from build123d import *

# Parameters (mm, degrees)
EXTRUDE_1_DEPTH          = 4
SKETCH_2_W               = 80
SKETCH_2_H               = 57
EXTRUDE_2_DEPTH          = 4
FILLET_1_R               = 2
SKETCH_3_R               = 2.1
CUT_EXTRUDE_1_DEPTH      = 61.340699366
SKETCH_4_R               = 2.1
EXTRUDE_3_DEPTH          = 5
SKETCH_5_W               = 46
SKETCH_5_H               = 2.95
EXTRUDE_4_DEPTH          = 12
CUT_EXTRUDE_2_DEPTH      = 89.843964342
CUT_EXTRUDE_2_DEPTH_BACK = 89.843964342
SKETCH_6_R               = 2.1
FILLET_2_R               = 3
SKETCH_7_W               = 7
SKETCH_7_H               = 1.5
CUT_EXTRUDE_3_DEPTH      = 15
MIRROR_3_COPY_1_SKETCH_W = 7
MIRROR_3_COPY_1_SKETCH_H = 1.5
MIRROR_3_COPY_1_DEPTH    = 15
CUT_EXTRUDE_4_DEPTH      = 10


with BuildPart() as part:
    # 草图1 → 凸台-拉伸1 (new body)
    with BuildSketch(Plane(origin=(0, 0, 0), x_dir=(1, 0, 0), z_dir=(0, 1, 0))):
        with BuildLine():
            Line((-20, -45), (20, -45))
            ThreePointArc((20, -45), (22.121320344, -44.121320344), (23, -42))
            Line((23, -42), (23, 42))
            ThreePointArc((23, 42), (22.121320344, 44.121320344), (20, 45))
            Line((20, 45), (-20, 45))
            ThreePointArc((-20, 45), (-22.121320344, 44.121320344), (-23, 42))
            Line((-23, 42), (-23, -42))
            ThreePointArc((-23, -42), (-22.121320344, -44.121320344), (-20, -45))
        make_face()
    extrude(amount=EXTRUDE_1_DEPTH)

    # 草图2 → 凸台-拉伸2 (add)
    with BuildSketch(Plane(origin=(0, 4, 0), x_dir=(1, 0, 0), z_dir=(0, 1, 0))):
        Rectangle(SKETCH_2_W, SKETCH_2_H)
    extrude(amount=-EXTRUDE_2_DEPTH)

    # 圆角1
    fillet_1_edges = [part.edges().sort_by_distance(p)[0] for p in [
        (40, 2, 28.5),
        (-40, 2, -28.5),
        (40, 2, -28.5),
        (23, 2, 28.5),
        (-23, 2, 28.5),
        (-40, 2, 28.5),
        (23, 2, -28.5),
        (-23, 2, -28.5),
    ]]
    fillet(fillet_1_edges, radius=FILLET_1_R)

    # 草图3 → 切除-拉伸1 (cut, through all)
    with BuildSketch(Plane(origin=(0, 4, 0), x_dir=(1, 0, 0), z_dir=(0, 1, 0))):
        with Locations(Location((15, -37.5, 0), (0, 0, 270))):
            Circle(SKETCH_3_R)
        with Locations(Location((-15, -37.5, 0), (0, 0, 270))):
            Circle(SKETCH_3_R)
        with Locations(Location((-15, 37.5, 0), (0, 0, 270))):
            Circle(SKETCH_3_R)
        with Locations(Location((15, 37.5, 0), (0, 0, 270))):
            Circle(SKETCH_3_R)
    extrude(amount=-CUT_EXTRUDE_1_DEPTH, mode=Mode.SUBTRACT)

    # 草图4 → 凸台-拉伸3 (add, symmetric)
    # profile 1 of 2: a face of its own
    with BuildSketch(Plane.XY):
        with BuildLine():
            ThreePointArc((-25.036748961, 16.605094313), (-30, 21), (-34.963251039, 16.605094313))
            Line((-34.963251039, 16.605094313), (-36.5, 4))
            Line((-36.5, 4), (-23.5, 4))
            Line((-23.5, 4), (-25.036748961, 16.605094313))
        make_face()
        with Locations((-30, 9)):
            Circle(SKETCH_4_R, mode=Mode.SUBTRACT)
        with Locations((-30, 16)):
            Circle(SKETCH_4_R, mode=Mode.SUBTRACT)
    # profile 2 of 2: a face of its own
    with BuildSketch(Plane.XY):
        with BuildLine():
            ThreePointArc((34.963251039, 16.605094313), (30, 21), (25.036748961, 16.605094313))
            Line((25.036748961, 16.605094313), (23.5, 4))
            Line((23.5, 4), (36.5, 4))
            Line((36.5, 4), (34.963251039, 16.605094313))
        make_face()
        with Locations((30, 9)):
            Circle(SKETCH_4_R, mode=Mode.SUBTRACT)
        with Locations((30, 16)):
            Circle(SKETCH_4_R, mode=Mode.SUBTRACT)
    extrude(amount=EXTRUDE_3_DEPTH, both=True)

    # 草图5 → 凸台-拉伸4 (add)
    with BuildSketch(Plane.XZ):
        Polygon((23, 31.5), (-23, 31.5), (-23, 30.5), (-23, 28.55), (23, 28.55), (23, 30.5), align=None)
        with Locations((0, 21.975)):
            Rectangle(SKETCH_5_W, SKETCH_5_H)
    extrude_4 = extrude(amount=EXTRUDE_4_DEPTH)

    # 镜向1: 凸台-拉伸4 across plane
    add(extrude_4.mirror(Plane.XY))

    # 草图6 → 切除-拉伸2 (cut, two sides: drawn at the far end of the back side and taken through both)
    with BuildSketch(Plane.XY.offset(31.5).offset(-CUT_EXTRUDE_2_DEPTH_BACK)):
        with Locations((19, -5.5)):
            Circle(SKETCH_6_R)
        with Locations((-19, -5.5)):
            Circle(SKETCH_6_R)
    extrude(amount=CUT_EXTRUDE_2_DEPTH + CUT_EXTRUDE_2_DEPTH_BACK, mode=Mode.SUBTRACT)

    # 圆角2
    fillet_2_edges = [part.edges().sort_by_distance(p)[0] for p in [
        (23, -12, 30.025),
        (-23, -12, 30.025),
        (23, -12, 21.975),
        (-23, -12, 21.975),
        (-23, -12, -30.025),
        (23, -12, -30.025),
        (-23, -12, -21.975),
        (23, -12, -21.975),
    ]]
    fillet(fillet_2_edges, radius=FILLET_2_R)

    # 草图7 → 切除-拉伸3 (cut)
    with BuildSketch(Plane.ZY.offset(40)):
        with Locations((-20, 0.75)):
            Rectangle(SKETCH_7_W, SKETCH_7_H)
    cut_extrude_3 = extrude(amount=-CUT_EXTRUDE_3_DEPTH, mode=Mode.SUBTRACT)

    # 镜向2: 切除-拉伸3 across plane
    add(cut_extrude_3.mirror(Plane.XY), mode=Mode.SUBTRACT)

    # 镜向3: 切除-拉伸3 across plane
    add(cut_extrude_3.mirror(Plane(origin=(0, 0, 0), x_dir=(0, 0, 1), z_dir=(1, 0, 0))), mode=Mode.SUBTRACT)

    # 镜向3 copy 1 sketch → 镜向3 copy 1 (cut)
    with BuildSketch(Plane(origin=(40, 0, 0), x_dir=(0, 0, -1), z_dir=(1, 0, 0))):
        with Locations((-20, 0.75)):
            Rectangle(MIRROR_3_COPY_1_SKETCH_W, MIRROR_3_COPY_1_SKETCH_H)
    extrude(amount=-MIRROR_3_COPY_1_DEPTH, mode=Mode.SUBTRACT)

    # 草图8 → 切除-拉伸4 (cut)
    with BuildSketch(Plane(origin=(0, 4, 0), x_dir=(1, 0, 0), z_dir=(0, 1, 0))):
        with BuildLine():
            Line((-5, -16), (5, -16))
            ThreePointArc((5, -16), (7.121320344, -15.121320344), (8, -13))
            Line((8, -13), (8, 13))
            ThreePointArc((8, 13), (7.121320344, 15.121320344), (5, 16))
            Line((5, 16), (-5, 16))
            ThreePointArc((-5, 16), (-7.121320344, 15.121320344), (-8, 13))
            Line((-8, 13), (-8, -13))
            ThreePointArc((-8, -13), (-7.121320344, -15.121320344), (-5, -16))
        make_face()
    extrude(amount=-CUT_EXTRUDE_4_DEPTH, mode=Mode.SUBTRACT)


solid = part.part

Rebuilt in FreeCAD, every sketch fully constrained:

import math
import FreeCAD as App
import Part
import Sketcher


def edges_at(feature, points):
    """Names of the edges that pass closest to the given points."""
    edges = feature.Shape.Edges
    near = lambda p: min(range(len(edges)), key=lambda i: edges[i].distToShape(Part.Vertex(*p))[0])
    return sorted({f"Edge{near(p) + 1}" for p in points})


def add_polygon(sketch, points):
    """Adds a closed chain of lines whose ends are joined by coincident constraints."""
    first, n = sketch.GeometryCount, len(points)
    for a, b in zip(points, points[1:] + points[:1]):
        sketch.addGeometry(Part.LineSegment(App.Vector(*a, 0), App.Vector(*b, 0)), False)
    for i in range(n):
        sketch.addConstraint(Sketcher.Constraint("Coincident", first + i, 2, first + (i + 1) % n, 1))

doc = App.newDocument("Part")
params = doc.addObject("Spreadsheet::Sheet", "Params")
for row, (alias, value) in enumerate([
    ("sketch1_radius", "3 mm"),
    ("sketch1_width", "40 mm"),
    ("sketch1_height", "84 mm"),
    ("pad1_length", "4 mm"),
    ("sketch2_width", "80 mm"),
    ("sketch2_height", "57 mm"),
    ("pad2_length", "4 mm"),
    ("fillet_radius", "2 mm"),
    ("sketch3_diameter", "4.2 mm"),
    ("sketch4_radius", "5 mm"),
    ("sketch4_diameter", "4.2 mm"),
    ("sketch4_width", "13 mm"),
    ("pad3_length", "10 mm"),
    ("sketch5_width", "46 mm"),
    ("sketch5_height", "2.95 mm"),
    ("pad4_length", "12 mm"),
    ("sketch6_diameter", "4.2 mm"),
    ("fillet2_radius", "3 mm"),
    ("sketch7_height", "7 mm"),
    ("sketch7_width", "1.5 mm"),
    ("pocket3_length", "15 mm"),
    ("sketch8_height", "7 mm"),
    ("sketch8_width", "1.5 mm"),
    ("pocket4_length", "15 mm"),
    ("sketch9_radius", "3 mm"),
    ("sketch9_width", "10 mm"),
    ("sketch9_height", "26 mm"),
    ("pocket5_length", "10 mm"),
], start=1):
    params.set(f"A{row}", alias)
    params.set(f"B{row}", "=" + value)
    params.setAlias(f"B{row}", alias)

body = doc.addObject("PartDesign::Body", "Body")

sketch1 = doc.addObject("Sketcher::SketchObject", "Sketch")
body.addObject(sketch1)
sketch1.AttachmentSupport = (doc.XZ_Plane, [""])
sketch1.MapMode = "FlatFace"
sketch1.addGeometry([
    Part.LineSegment(App.Vector(-20, 45, 0), App.Vector(20, 45, 0)),
    Part.ArcOfCircle(Part.Circle(App.Vector(20, 42, 0), App.Vector(0, 0, 1), 3), math.radians(0), math.radians(90)),
    Part.LineSegment(App.Vector(23, 42, 0), App.Vector(23, -42, 0)),
    Part.ArcOfCircle(Part.Circle(App.Vector(20, -42, 0), App.Vector(0, 0, 1), 3), math.radians(-90), math.radians(0)),
    Part.LineSegment(App.Vector(20, -45, 0), App.Vector(-20, -45, 0)),
    Part.ArcOfCircle(Part.Circle(App.Vector(-20, -42, 0), App.Vector(0, 0, 1), 3), math.radians(180), math.radians(270)),
    Part.LineSegment(App.Vector(-23, -42, 0), App.Vector(-23, 42, 0)),
    Part.ArcOfCircle(Part.Circle(App.Vector(-20, 42, 0), App.Vector(0, 0, 1), 3), math.radians(90), math.radians(180)),
], False)
sketch1.addConstraint([
    Sketcher.Constraint("Tangent", 0, 2, 1, 2),
    Sketcher.Constraint("Tangent", 1, 1, 2, 1),
    Sketcher.Constraint("Tangent", 2, 2, 3, 2),
    Sketcher.Constraint("Tangent", 3, 1, 4, 1),
    Sketcher.Constraint("Tangent", 4, 2, 5, 2),
    Sketcher.Constraint("Tangent", 5, 1, 6, 1),
    Sketcher.Constraint("Tangent", 6, 2, 7, 2),
    Sketcher.Constraint("Tangent", 7, 1, 0, 1),
    Sketcher.Constraint("Horizontal", 0),
    Sketcher.Constraint("Vertical", 2),
    Sketcher.Constraint("Horizontal", 4),
    Sketcher.Constraint("Vertical", 6),
    Sketcher.Constraint("Equal", 1, 3),
    Sketcher.Constraint("Equal", 3, 5),
    Sketcher.Constraint("Equal", 5, 7),
    Sketcher.Constraint("Symmetric", 1, 3, 5, 3, -1, 1),
    Sketcher.Constraint("Radius", 1, 3.0),
    Sketcher.Constraint("DistanceX", 0, 1, 0, 2, 40.0),
    Sketcher.Constraint("DistanceY", 2, 2, 2, 1, 84.0),
])
sketch1.setExpression("Constraints[16]", "Params.sketch1_radius")
sketch1.setExpression("Constraints[17]", "Params.sketch1_width")
sketch1.setExpression("Constraints[18]", "Params.sketch1_height")
pad1 = doc.addObject("PartDesign::Pad", "Pad")
body.addObject(pad1)
pad1.Profile = sketch1
pad1.setExpression("Length", "Params.pad1_length")
pad1.Reversed = True

sketch2 = doc.addObject("Sketcher::SketchObject", "Sketch001")
body.addObject(sketch2)
sketch2.AttachmentSupport = (doc.XZ_Plane, [""])
sketch2.MapMode = "FlatFace"
sketch2.AttachmentOffset = App.Placement(App.Vector(0, 0, -4), App.Rotation())
add_polygon(sketch2, [(-40, -28.5), (-40, 28.5), (40, 28.5), (40, -28.5)])
sketch2.addConstraint([
    Sketcher.Constraint("Vertical", 0),
    Sketcher.Constraint("Horizontal", 1),
    Sketcher.Constraint("Vertical", 2),
    Sketcher.Constraint("Horizontal", 3),
    Sketcher.Constraint("Symmetric", 0, 2, 2, 2, -1, 1),
    Sketcher.Constraint("DistanceX", 1, 1, 1, 2, 80.0),
    Sketcher.Constraint("DistanceY", 0, 1, 0, 2, 57.0),
])
sketch2.setExpression("Constraints[9]", "Params.sketch2_width")
sketch2.setExpression("Constraints[10]", "Params.sketch2_height")
pad2 = doc.addObject("PartDesign::Pad", "Pad001")
body.addObject(pad2)
pad2.Profile = sketch2
pad2.setExpression("Length", "Params.pad2_length")
doc.recompute()

fillet = doc.addObject("PartDesign::Fillet", "Fillet")
body.addObject(fillet)
fillet.Base = (pad2, edges_at(pad2, [
    (40, 2, 28.5),
    (-40, 2, -28.5),
    (40, 2, -28.5),
    (23, 2, 28.5),
    (-23, 2, 28.5),
    (-40, 2, 28.5),
    (23, 2, -28.5),
    (-23, 2, -28.5),
]))
fillet.setExpression("Radius", "Params.fillet_radius")

sketch3 = doc.addObject("Sketcher::SketchObject", "Sketch002")
body.addObject(sketch3)
sketch3.AttachmentSupport = (doc.XZ_Plane, [""])
sketch3.MapMode = "FlatFace"
sketch3.AttachmentOffset = App.Placement(App.Vector(0, 0, -4), App.Rotation())
sketch3.addGeometry([
    Part.Circle(App.Vector(15, 37.5, 0), App.Vector(0, 0, 1), 2.1),
    Part.Circle(App.Vector(-15, 37.5, 0), App.Vector(0, 0, 1), 2.1),
    Part.Circle(App.Vector(-15, -37.5, 0), App.Vector(0, 0, 1), 2.1),
    Part.Circle(App.Vector(15, -37.5, 0), App.Vector(0, 0, 1), 2.1),
], False)
sketch3.addConstraint([
    Sketcher.Constraint("Equal", 0, 1),
    Sketcher.Constraint("Equal", 1, 2),
    Sketcher.Constraint("Equal", 2, 3),
    Sketcher.Constraint("Symmetric", 0, 3, 2, 3, -1, 1),
    Sketcher.Constraint("Symmetric", 1, 3, 3, 3, -1, 1),
    Sketcher.Constraint("Symmetric", 0, 3, 1, 3, -2),
    Sketcher.Constraint("Diameter", 0, 4.2),
    Sketcher.Constraint("DistanceX", -1, 1, 0, 3, 15.0),
    Sketcher.Constraint("DistanceY", 2, 3, 1, 3, 75.0),
])
sketch3.setExpression("Constraints[6]", "Params.sketch3_diameter")
pocket1 = doc.addObject("PartDesign::Pocket", "Pocket")
body.addObject(pocket1)
pocket1.Profile = sketch3
pocket1.Type = "ThroughAll"
pocket1.Reversed = True

sketch4 = doc.addObject("Sketcher::SketchObject", "Sketch003")
body.addObject(sketch4)
sketch4.AttachmentSupport = (doc.XY_Plane, [""])
sketch4.MapMode = "FlatFace"
sketch4.addGeometry([
    Part.ArcOfCircle(Part.Circle(App.Vector(-30, 16, 0), App.Vector(0, 0, 1), 5), math.radians(6.950908), math.radians(173.049092)),
    Part.LineSegment(App.Vector(-34.963251, 16.605094, 0), App.Vector(-36.5, 4, 0)),
    Part.LineSegment(App.Vector(-36.5, 4, 0), App.Vector(-23.5, 4, 0)),
    Part.LineSegment(App.Vector(-23.5, 4, 0), App.Vector(-25.036749, 16.605094, 0)),
    Part.Circle(App.Vector(-30, 9, 0), App.Vector(0, 0, 1), 2.1),
    Part.Circle(App.Vector(-30, 16, 0), App.Vector(0, 0, 1), 2.1),
    Part.ArcOfCircle(Part.Circle(App.Vector(30, 16, 0), App.Vector(0, 0, 1), 5), math.radians(6.950908), math.radians(173.049092)),
    Part.LineSegment(App.Vector(25.036749, 16.605094, 0), App.Vector(23.5, 4, 0)),
    Part.LineSegment(App.Vector(23.5, 4, 0), App.Vector(36.5, 4, 0)),
    Part.LineSegment(App.Vector(36.5, 4, 0), App.Vector(34.963251, 16.605094, 0)),
    Part.Circle(App.Vector(30, 9, 0), App.Vector(0, 0, 1), 2.1),
    Part.Circle(App.Vector(30, 16, 0), App.Vector(0, 0, 1), 2.1),
], False)
sketch4.addConstraint([
    Sketcher.Constraint("Tangent", 0, 2, 1, 1),
    Sketcher.Constraint("Coincident", 1, 2, 2, 1),
    Sketcher.Constraint("Coincident", 2, 2, 3, 1),
    Sketcher.Constraint("Tangent", 3, 2, 0, 1),
    Sketcher.Constraint("Tangent", 6, 2, 7, 1),
    Sketcher.Constraint("Coincident", 7, 2, 8, 1),
    Sketcher.Constraint("Coincident", 8, 2, 9, 1),
    Sketcher.Constraint("Tangent", 9, 2, 6, 1),
    Sketcher.Constraint("Horizontal", 2),
    Sketcher.Constraint("Horizontal", 8),
    Sketcher.Constraint("Coincident", 5, 3, 0, 3),
    Sketcher.Constraint("Coincident", 11, 3, 6, 3),
    Sketcher.Constraint("Equal", 4, 5),
    Sketcher.Constraint("Equal", 0, 6),
    Sketcher.Constraint("Equal", 5, 10),
    Sketcher.Constraint("Equal", 10, 11),
    Sketcher.Constraint("Symmetric", 0, 3, 6, 3, -2),
    Sketcher.Constraint("Symmetric", 4, 3, 10, 3, -2),
    Sketcher.Constraint("Symmetric", 2, 2, 7, 2, -2),
    Sketcher.Constraint("Parallel", 1, 7),
    Sketcher.Constraint("Parallel", 3, 9),
    Sketcher.Constraint("Vertical", 0, 3, 4, 3),
    Sketcher.Constraint("Radius", 0, 5.0),
    Sketcher.Constraint("Diameter", 4, 4.2),
    Sketcher.Constraint("DistanceX", 2, 1, 2, 2, 13.0),
    Sketcher.Constraint("DistanceX", 0, 3, -1, 1, 30.0),
    Sketcher.Constraint("DistanceY", -1, 1, 0, 3, 16.0),
    Sketcher.Constraint("DistanceY", -1, 1, 4, 3, 9.0),
    Sketcher.Constraint("DistanceY", -1, 1, 1, 2, 4.0),
])
sketch4.setExpression("Constraints[22]", "Params.sketch4_radius")
sketch4.setExpression("Constraints[23]", "Params.sketch4_diameter")
sketch4.setExpression("Constraints[24]", "Params.sketch4_width")
pad3 = doc.addObject("PartDesign::Pad", "Pad002")
body.addObject(pad3)
pad3.Profile = sketch4
pad3.setExpression("Length", "Params.pad3_length")
pad3.Midplane = True

sketch5 = doc.addObject("Sketcher::SketchObject", "Sketch004")
body.addObject(sketch5)
sketch5.AttachmentSupport = (doc.XZ_Plane, [""])
sketch5.MapMode = "FlatFace"
add_polygon(sketch5, [(23, 31.5), (-23, 31.5), (-23, 28.55), (23, 28.55)])
add_polygon(sketch5, [(-23, 23.45), (-23, 20.5), (23, 20.5), (23, 23.45)])
sketch5.addConstraint([
    Sketcher.Constraint("Horizontal", 0),
    Sketcher.Constraint("Vertical", 1),
    Sketcher.Constraint("Horizontal", 2),
    Sketcher.Constraint("Vertical", 3),
    Sketcher.Constraint("Vertical", 4),
    Sketcher.Constraint("Horizontal", 5),
    Sketcher.Constraint("Vertical", 6),
    Sketcher.Constraint("Horizontal", 7),
    Sketcher.Constraint("Vertical", 1, 2, 4, 2),
    Sketcher.Constraint("Vertical", 3, 2, 5, 2),
    Sketcher.Constraint("Equal", 3, 4),
    Sketcher.Constraint("DistanceX", 0, 2, 0, 1, 46.0),
    Sketcher.Constraint("DistanceX", 0, 2, -1, 1, 23.0),
    Sketcher.Constraint("DistanceY", 4, 2, 0, 2, 11.0),
    Sketcher.Constraint("DistanceY", 1, 2, 1, 1, 2.95),
    Sketcher.Constraint("DistanceY", -1, 1, 0, 2, 31.5),
])
sketch5.setExpression("Constraints[19]", "Params.sketch5_width")
sketch5.setExpression("Constraints[22]", "Params.sketch5_height")
pad4 = doc.addObject("PartDesign::Pad", "Pad003")
body.addObject(pad4)
pad4.Profile = sketch5
pad4.setExpression("Length", "Params.pad4_length")
doc.recompute()

mirrored = doc.addObject("PartDesign::Mirrored", "Mirrored")
body.addObject(mirrored)
mirrored.Originals = [pad4]
mirrored.MirrorPlane = (doc.XY_Plane, [""])
body.Tip = mirrored

sketch6 = doc.addObject("Sketcher::SketchObject", "Sketch005")
body.addObject(sketch6)
sketch6.AttachmentSupport = (doc.XY_Plane, [""])
sketch6.MapMode = "FlatFace"
sketch6.AttachmentOffset = App.Placement(App.Vector(0, 0, 31.5), App.Rotation())
sketch6.addGeometry([
    Part.Circle(App.Vector(19, -5.5, 0), App.Vector(0, 0, 1), 2.1),
    Part.Circle(App.Vector(-19, -5.5, 0), App.Vector(0, 0, 1), 2.1),
], False)
sketch6.addConstraint([
    Sketcher.Constraint("Equal", 0, 1),
    Sketcher.Constraint("Symmetric", 0, 3, 1, 3, -2),
    Sketcher.Constraint("Diameter", 0, 4.2),
    Sketcher.Constraint("DistanceX", -1, 1, 0, 3, 19.0),
    Sketcher.Constraint("DistanceY", 0, 3, -1, 1, 5.5),
])
sketch6.setExpression("Constraints[2]", "Params.sketch6_diameter")
pocket2 = doc.addObject("PartDesign::Pocket", "Pocket001")
body.addObject(pocket2)
pocket2.Profile = sketch6
pocket2.Type = "ThroughAll"
pocket2.Midplane = True
doc.recompute()

fillet2 = doc.addObject("PartDesign::Fillet", "Fillet001")
body.addObject(fillet2)
fillet2.Base = (pocket2, edges_at(pocket2, [
    (23, -12, 30.025),
    (-23, -12, 30.025),
    (23, -12, 21.975),
    (-23, -12, 21.975),
    (-23, -12, -30.025),
    (23, -12, -30.025),
    (-23, -12, -21.975),
    (23, -12, -21.975),
]))
fillet2.setExpression("Radius", "Params.fillet2_radius")

sketch7 = doc.addObject("Sketcher::SketchObject", "Sketch006")
body.addObject(sketch7)
sketch7.AttachmentSupport = (doc.YZ_Plane, [""])
sketch7.MapMode = "FlatFace"
sketch7.AttachmentOffset = App.Placement(App.Vector(0, 0, -40), App.Rotation())
add_polygon(sketch7, [(1.5, -23.5), (0, -23.5), (0, -16.5), (1.5, -16.5)])
sketch7.addConstraint([
    Sketcher.Constraint("Horizontal", 0),
    Sketcher.Constraint("Vertical", 1),
    Sketcher.Constraint("Horizontal", 2),
    Sketcher.Constraint("Vertical", 3),
    Sketcher.Constraint("PointOnObject", 0, 2, -2),
    Sketcher.Constraint("DistanceY", 1, 1, 1, 2, 7.0),
    Sketcher.Constraint("DistanceX", 0, 2, 0, 1, 1.5),
    Sketcher.Constraint("DistanceY", 0, 2, -1, 1, 23.5),
])
sketch7.setExpression("Constraints[9]", "Params.sketch7_height")
sketch7.setExpression("Constraints[10]", "Params.sketch7_width")
pocket3 = doc.addObject("PartDesign::Pocket", "Pocket002")
body.addObject(pocket3)
pocket3.Profile = sketch7
pocket3.setExpression("Length", "Params.pocket3_length")
pocket3.Reversed = True
doc.recompute()

mirrored2 = doc.addObject("PartDesign::Mirrored", "Mirrored001")
body.addObject(mirrored2)
mirrored2.Originals = [pocket3]
mirrored2.MirrorPlane = (doc.XY_Plane, [""])
body.Tip = mirrored2
doc.recompute()

mirrored3 = doc.addObject("PartDesign::Mirrored", "Mirrored002")
body.addObject(mirrored3)
mirrored3.Originals = [pocket3]
mirrored3.MirrorPlane = (doc.YZ_Plane, [""])
body.Tip = mirrored3

sketch8 = doc.addObject("Sketcher::SketchObject", "Sketch007")
body.addObject(sketch8)
sketch8.AttachmentSupport = (doc.YZ_Plane, [""])
sketch8.MapMode = "FlatFace"
sketch8.AttachmentOffset = App.Placement(App.Vector(0, 0, 40), App.Rotation())
add_polygon(sketch8, [(1.5, 23.5), (0, 23.5), (0, 16.5), (1.5, 16.5)])
sketch8.addConstraint([
    Sketcher.Constraint("Horizontal", 0),
    Sketcher.Constraint("Vertical", 1),
    Sketcher.Constraint("Horizontal", 2),
    Sketcher.Constraint("Vertical", 3),
    Sketcher.Constraint("PointOnObject", 0, 2, -2),
    Sketcher.Constraint("DistanceY", 1, 2, 1, 1, 7.0),
    Sketcher.Constraint("DistanceX", 0, 2, 0, 1, 1.5),
    Sketcher.Constraint("DistanceY", -1, 1, 0, 2, 23.5),
])
sketch8.setExpression("Constraints[9]", "Params.sketch8_height")
sketch8.setExpression("Constraints[10]", "Params.sketch8_width")
pocket4 = doc.addObject("PartDesign::Pocket", "Pocket003")
body.addObject(pocket4)
pocket4.Profile = sketch8
pocket4.setExpression("Length", "Params.pocket4_length")

sketch9 = doc.addObject("Sketcher::SketchObject", "Sketch008")
body.addObject(sketch9)
sketch9.AttachmentSupport = (doc.XZ_Plane, [""])
sketch9.MapMode = "FlatFace"
sketch9.AttachmentOffset = App.Placement(App.Vector(0, 0, -4), App.Rotation())
sketch9.addGeometry([
    Part.LineSegment(App.Vector(-5, 16, 0), App.Vector(5, 16, 0)),
    Part.ArcOfCircle(Part.Circle(App.Vector(5, 13, 0), App.Vector(0, 0, 1), 3), math.radians(0), math.radians(90)),
    Part.LineSegment(App.Vector(8, 13, 0), App.Vector(8, -13, 0)),
    Part.ArcOfCircle(Part.Circle(App.Vector(5, -13, 0), App.Vector(0, 0, 1), 3), math.radians(-90), math.radians(0)),
    Part.LineSegment(App.Vector(5, -16, 0), App.Vector(-5, -16, 0)),
    Part.ArcOfCircle(Part.Circle(App.Vector(-5, -13, 0), App.Vector(0, 0, 1), 3), math.radians(180), math.radians(270)),
    Part.LineSegment(App.Vector(-8, -13, 0), App.Vector(-8, 13, 0)),
    Part.ArcOfCircle(Part.Circle(App.Vector(-5, 13, 0), App.Vector(0, 0, 1), 3), math.radians(90), math.radians(180)),
], False)
sketch9.addConstraint([
    Sketcher.Constraint("Tangent", 0, 2, 1, 2),
    Sketcher.Constraint("Tangent", 1, 1, 2, 1),
    Sketcher.Constraint("Tangent", 2, 2, 3, 2),
    Sketcher.Constraint("Tangent", 3, 1, 4, 1),
    Sketcher.Constraint("Tangent", 4, 2, 5, 2),
    Sketcher.Constraint("Tangent", 5, 1, 6, 1),
    Sketcher.Constraint("Tangent", 6, 2, 7, 2),
    Sketcher.Constraint("Tangent", 7, 1, 0, 1),
    Sketcher.Constraint("Horizontal", 0),
    Sketcher.Constraint("Vertical", 2),
    Sketcher.Constraint("Horizontal", 4),
    Sketcher.Constraint("Vertical", 6),
    Sketcher.Constraint("Equal", 1, 3),
    Sketcher.Constraint("Equal", 3, 5),
    Sketcher.Constraint("Equal", 5, 7),
    Sketcher.Constraint("Symmetric", 1, 3, 5, 3, -1, 1),
    Sketcher.Constraint("Radius", 1, 3.0),
    Sketcher.Constraint("DistanceX", 0, 1, 0, 2, 10.0),
    Sketcher.Constraint("DistanceY", 2, 2, 2, 1, 26.0),
])
sketch9.setExpression("Constraints[16]", "Params.sketch9_radius")
sketch9.setExpression("Constraints[17]", "Params.sketch9_width")
sketch9.setExpression("Constraints[18]", "Params.sketch9_height")
pocket5 = doc.addObject("PartDesign::Pocket", "Pocket004")
body.addObject(pocket5)
pocket5.Profile = sketch9
pocket5.setExpression("Length", "Params.pocket5_length")
pocket5.Reversed = True

doc.recompute()
